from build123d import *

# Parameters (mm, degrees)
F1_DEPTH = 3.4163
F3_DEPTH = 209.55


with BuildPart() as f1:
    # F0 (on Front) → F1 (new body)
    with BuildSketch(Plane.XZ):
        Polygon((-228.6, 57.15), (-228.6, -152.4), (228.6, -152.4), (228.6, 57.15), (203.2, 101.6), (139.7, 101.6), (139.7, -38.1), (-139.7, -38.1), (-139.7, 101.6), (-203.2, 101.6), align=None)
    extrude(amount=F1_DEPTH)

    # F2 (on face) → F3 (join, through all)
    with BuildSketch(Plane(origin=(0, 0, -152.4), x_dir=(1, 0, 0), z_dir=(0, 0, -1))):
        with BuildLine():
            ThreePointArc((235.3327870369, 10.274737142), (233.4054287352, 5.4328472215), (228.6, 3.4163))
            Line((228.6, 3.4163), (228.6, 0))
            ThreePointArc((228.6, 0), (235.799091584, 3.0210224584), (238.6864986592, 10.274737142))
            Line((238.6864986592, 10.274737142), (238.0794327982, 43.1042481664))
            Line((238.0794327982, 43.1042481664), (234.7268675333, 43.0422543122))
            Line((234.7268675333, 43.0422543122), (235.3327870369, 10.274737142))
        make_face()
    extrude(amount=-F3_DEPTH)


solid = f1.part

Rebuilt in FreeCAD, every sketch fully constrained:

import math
import FreeCAD as App
import Part
import Sketcher
from FreeCAD import Vector
Q = App.Units.Quantity

doc = App.newDocument("Part")
params = doc.addObject("Spreadsheet::Sheet", "Params")
for row, (alias, value) in enumerate([
    ("sketch1_width", "18 in"),
    ("sketch1_width2", "11 in"),
    ("sketch1_width3", "2.5 in"),
    ("sketch1_height", "5.5 in"),
    ("sketch1_height2", "8.25 in"),
    ("pad1_length", "0.1345 in"),
    ("pad2_length", "8.25 in"),
], start=1):
    params.set(f"A{row}", alias)
    params.set(f"B{row}", "=" + value)
    params.setAlias(f"B{row}", alias)

body = doc.addObject("PartDesign::Body", "Body")

# Sketch on XZ plane
sketch1 = body.newObject("Sketcher::SketchObject", "Sketch")
sketch1.AttachmentSupport = (doc.getObject("XZ_Plane"), [""])
sketch1.MapMode = "FlatFace"
sketch1.addGeometry([
    Part.LineSegment(Vector(-229, 57, 0), Vector(-229, -152, 0)),  # 0
    Part.LineSegment(Vector(-229, -152, 0), Vector(229, -152, 0)),  # 1
    Part.LineSegment(Vector(229, -152, 0), Vector(229, 57, 0)),  # 2
    Part.LineSegment(Vector(229, 57, 0), Vector(203, 102, 0)),  # 3
    Part.LineSegment(Vector(203, 102, 0), Vector(140, 102, 0)),  # 4
    Part.LineSegment(Vector(140, 102, 0), Vector(140, -38, 0)),  # 5
    Part.LineSegment(Vector(140, -38, 0), Vector(-140, -38, 0)),  # 6
    Part.LineSegment(Vector(-140, -38, 0), Vector(-140, 102, 0)),  # 7
    Part.LineSegment(Vector(-140, 102, 0), Vector(-203, 102, 0)),  # 8
    Part.LineSegment(Vector(-203, 102, 0), Vector(-229, 57, 0)),  # 9
], False)
sketch1.addConstraint([
    Sketcher.Constraint("Coincident", 0, 2, 1, 1),
    Sketcher.Constraint("Coincident", 1, 2, 2, 1),
    Sketcher.Constraint("Coincident", 2, 2, 3, 1),
    Sketcher.Constraint("Coincident", 3, 2, 4, 1),
    Sketcher.Constraint("Coincident", 4, 2, 5, 1),
    Sketcher.Constraint("Coincident", 5, 2, 6, 1),
    Sketcher.Constraint("Coincident", 6, 2, 7, 1),
    Sketcher.Constraint("Coincident", 7, 2, 8, 1),
    Sketcher.Constraint("Coincident", 8, 2, 9, 1),
    Sketcher.Constraint("Coincident", 9, 2, 0, 1),
    Sketcher.Constraint("Vertical", 0),
    Sketcher.Constraint("Horizontal", 1),
    Sketcher.Constraint("Vertical", 2),
    Sketcher.Constraint("Horizontal", 4),
    Sketcher.Constraint("Vertical", 5),
    Sketcher.Constraint("Horizontal", 6),
    Sketcher.Constraint("Vertical", 7),
    Sketcher.Constraint("Horizontal", 8),
    Sketcher.Constraint("Symmetric", 4, 2, 7, 2, -2),
    Sketcher.Constraint("Symmetric", 2, 2, 9, 2, -2),
    Sketcher.Constraint("Equal", 4, 8),
    Sketcher.Constraint("DistanceX", 1, 1, 1, 2, Q("18 in")),
    Sketcher.Constraint("DistanceX", 6, 2, 6, 1, Q("11 in")),
    Sketcher.Constraint("DistanceX", 4, 2, 4, 1, Q("2.5 in")),
    Sketcher.Constraint("DistanceY", 5, 2, 5, 1, Q("5.5 in")),
    Sketcher.Constraint("DistanceY", 0, 2, -1, 1, Q("6 in")),
    Sketcher.Constraint("DistanceY", -1, 1, 3, 2, Q("4 in")),
    Sketcher.Constraint("DistanceY", 0, 2, 0, 1, Q("8.25 in")),
])
sketch1.setExpression("Constraints[21]", "Params.sketch1_width")
sketch1.setExpression("Constraints[22]", "Params.sketch1_width2")
sketch1.setExpression("Constraints[23]", "Params.sketch1_width3")
sketch1.setExpression("Constraints[24]", "Params.sketch1_height")
sketch1.setExpression("Constraints[27]", "Params.sketch1_height2")
pad1 = body.newObject("PartDesign::Pad", "Pad")
pad1.Profile = sketch1
pad1.setExpression("Length", "Params.pad1_length")

# Sketch on XY plane
sketch2 = body.newObject("Sketcher::SketchObject", "Sketch001")
sketch2.AttachmentSupport = (doc.getObject("XY_Plane"), [""])
sketch2.MapMode = "FlatFace"
sketch2.AttachmentOffset = App.Placement(Vector(0, 0, -6 * 25.4), App.Rotation())
sketch2.addGeometry([
    Part.ArcOfCircle(Part.Circle(Vector(228.6, -10.2, 0), Vector(0, 0, 1), 6.7), math.radians(-1), math.radians(90)),  # 0
    Part.LineSegment(Vector(228.6, -3.4, 0), Vector(228.6, 0, 0)),  # 1
    Part.ArcOfCircle(Part.Circle(Vector(228.6, -10.1, 0), Vector(0, 0, 1), 10.1), math.radians(-1), math.radians(90)),  # 2
    Part.LineSegment(Vector(238.7, -10.3, 0), Vector(238.1, -43.1, 0)),  # 3
    Part.LineSegment(Vector(238.1, -43.1, 0), Vector(234.7, -43, 0)),  # 4
    Part.LineSegment(Vector(234.7, -43, 0), Vector(235.3, -10.3, 0)),  # 5
], False)
sketch2.addConstraint([
    Sketcher.Constraint("Coincident", 0, 2, 1, 1),
    Sketcher.Constraint("Coincident", 1, 2, 2, 2),
    Sketcher.Constraint("Tangent", 2, 1, 3, 1),
    Sketcher.Constraint("Coincident", 3, 2, 4, 1),
    Sketcher.Constraint("Coincident", 4, 2, 5, 1),
    Sketcher.Constraint("Tangent", 5, 2, 0, 1),
    Sketcher.Constraint("Vertical", 1),
    Sketcher.Constraint("PointOnObject", 1, 2, -1),
    Sketcher.Constraint("Perpendicular", 3, 4),
    Sketcher.Constraint("Perpendicular", 4, 5),
    Sketcher.Constraint("Horizontal", 2, 1, 5, 2),
    Sketcher.Constraint("Vertical", 0, 3, 2, 3),
    Sketcher.Constraint("Vertical", 2, 3, 0, 2),
    Sketcher.Constraint("DistanceX", -1, 1, 0, 3, Q("9 in")),
    Sketcher.Constraint("DistanceY", 1, 1, 1, 2, Q("0.1345 in")),
    Sketcher.Constraint("Radius", 0, Q("6.733938 mm")),
    Sketcher.Constraint("Radius", 2, Q("10.088223 mm")),
    Sketcher.Constraint("Distance", 5, Q("32.773119 mm")),
])
pad2 = body.newObject("PartDesign::Pad", "Pad001")
pad2.Profile = sketch2
pad2.setExpression("Length", "Params.pad2_length")

doc.recompute()
